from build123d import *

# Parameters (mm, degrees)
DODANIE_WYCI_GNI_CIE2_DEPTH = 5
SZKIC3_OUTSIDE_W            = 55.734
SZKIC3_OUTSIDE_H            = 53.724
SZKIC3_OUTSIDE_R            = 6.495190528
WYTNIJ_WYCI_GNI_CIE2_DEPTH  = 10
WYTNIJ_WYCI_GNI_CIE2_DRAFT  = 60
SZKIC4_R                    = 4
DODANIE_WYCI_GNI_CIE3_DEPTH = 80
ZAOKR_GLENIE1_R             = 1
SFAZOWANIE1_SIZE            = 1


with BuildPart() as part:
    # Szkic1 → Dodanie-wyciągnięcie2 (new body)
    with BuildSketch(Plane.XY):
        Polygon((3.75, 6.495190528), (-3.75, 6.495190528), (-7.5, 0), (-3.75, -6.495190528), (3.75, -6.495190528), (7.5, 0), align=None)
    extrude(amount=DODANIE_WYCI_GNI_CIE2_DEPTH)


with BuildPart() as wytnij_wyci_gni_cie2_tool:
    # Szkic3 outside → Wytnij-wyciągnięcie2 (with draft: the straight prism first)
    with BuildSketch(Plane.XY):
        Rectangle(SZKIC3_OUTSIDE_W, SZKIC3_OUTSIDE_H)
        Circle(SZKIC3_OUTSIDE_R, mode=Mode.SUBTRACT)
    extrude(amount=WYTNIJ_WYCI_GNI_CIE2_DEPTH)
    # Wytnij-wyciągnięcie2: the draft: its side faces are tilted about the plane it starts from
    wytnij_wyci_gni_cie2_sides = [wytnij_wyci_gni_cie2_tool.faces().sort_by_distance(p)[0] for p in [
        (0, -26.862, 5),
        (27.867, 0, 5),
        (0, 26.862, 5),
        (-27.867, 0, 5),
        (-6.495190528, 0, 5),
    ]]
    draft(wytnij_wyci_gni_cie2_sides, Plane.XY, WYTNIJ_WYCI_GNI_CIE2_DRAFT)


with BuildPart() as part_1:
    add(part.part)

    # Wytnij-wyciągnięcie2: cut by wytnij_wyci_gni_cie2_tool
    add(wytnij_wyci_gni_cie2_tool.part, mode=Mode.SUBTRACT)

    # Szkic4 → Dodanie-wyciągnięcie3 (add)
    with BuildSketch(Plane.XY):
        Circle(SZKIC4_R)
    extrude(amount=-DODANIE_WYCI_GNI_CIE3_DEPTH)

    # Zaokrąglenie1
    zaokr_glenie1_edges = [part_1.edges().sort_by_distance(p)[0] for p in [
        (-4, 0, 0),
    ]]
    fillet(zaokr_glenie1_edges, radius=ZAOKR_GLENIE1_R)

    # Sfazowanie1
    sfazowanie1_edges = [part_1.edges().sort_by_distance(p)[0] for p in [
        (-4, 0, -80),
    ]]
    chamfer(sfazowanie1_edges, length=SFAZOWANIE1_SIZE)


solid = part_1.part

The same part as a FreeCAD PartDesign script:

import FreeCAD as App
import Part
import Sketcher
Q = App.Units.Quantity


def edges_at(feature, points):
    """Names of the edges that pass closest to the given points."""
    edges = feature.Shape.Edges
    near = lambda p: min(range(len(edges)), key=lambda i: edges[i].distToShape(Part.Vertex(*p))[0])
    return sorted({f"Edge{near(p) + 1}" for p in points})


def faces_at(feature, points):
    """Names of the faces that lie closest to the given points."""
    faces = feature.Shape.Faces
    near = lambda p: min(range(len(faces)), key=lambda i: faces[i].distToShape(Part.Vertex(*p))[0])
    return sorted({f"Face{near(p) + 1}" for p in points})


def add_polygon(sketch, points):
    """Adds a closed chain of lines whose ends are joined by coincident constraints."""
    first, n = sketch.GeometryCount, len(points)
    for a, b in zip(points, points[1:] + points[:1]):
        sketch.addGeometry(Part.LineSegment(App.Vector(*a, 0), App.Vector(*b, 0)), False)
    for i in range(n):
        sketch.addConstraint(Sketcher.Constraint("Coincident", first + i, 2, first + (i + 1) % n, 1))

doc = App.newDocument("Part")
body = doc.addObject("PartDesign::Body", "Body")

# Sketch on XY plane
sketch1 = body.newObject("Sketcher::SketchObject", "Sketch")
sketch1.AttachmentSupport = (doc.getObject("XY_Plane"), [""])
sketch1.MapMode = "FlatFace"
add_polygon(sketch1, [(3.75, 6.495191), (-3.75, 6.495191), (-7.5, 0), (-3.75, -6.495191), (3.75, -6.495191), (7.5, 0)])  # lines 0-5
sketch1.addConstraint(Sketcher.Constraint("Horizontal", 0))
sketch1.addConstraint(Sketcher.Constraint("Horizontal", 3))
sketch1.addConstraint(Sketcher.Constraint("Symmetric", 0, 2, 3, 2, -1, 1))
sketch1.addConstraint(Sketcher.Constraint("Symmetric", 1, 2, 4, 2, -1, 1))
sketch1.addConstraint(Sketcher.Constraint("PointOnObject", 1, 2, -1))
sketch1.addConstraint(Sketcher.Constraint("Parallel", 2, 5))
sketch1.addConstraint(Sketcher.Constraint("Vertical", 0, 2, 2, 2))
sketch1.addConstraint(Sketcher.Constraint("Angle", 1, Q("-120 deg")))
sketch1.addConstraint(Sketcher.Constraint("DistanceX", 0, 2, 0, 1, 7.5))
sketch1.addConstraint(Sketcher.Constraint("DistanceX", 1, 2, 4, 2, 15.0))
pad1 = body.newObject("PartDesign::Pad", "Pad")
pad1.Profile = sketch1
pad1.Length = 5
body2 = doc.addObject("PartDesign::Body", "Body001")

# Sketch on XY plane
sketch2 = body2.newObject("Sketcher::SketchObject", "Sketch001")
sketch2.AttachmentSupport = (doc.getObject("XY_Plane001"), [""])
sketch2.MapMode = "FlatFace"
add_polygon(sketch2, [(-27.867, 26.862), (-27.867, -26.862), (27.867, -26.862), (27.867, 26.862)])  # lines 0-3
sketch2.addGeometry(Part.Circle(App.Vector(0, 0, 0), App.Vector(0, 0, 1), 6.495191), False)  # 4
sketch2.addConstraint(Sketcher.Constraint("Vertical", 0))
sketch2.addConstraint(Sketcher.Constraint("Horizontal", 1))
sketch2.addConstraint(Sketcher.Constraint("Vertical", 2))
sketch2.addConstraint(Sketcher.Constraint("Horizontal", 3))
sketch2.addConstraint(Sketcher.Constraint("Coincident", 4, 3, -1, 1))
sketch2.addConstraint(Sketcher.Constraint("Symmetric", 0, 2, 2, 2, -1, 1))
sketch2.addConstraint(Sketcher.Constraint("Diameter", 4, 12.990381))
sketch2.addConstraint(Sketcher.Constraint("DistanceX", 1, 1, 1, 2, 55.734))
sketch2.addConstraint(Sketcher.Constraint("DistanceY", 0, 2, 0, 1, 53.724))
pad2 = body2.newObject("PartDesign::Pad", "Pad001")
pad2.Profile = sketch2
pad2.Length = 10
doc.recompute()

draft = body2.newObject("PartDesign::Draft", "Draft")
draft.Base = (pad2, faces_at(pad2, [
    (0, -26.862, 5),
    (27.867, 0, 5),
    (0, 26.862, 5),
    (-27.867, 0, 5),
    (-6.495, 0, 5),
]))
draft.NeutralPlane = (doc.getObject("XY_Plane001"), [""])
draft.Angle = 60
draft.Reversed = False
doc.recompute()

boolean = body.newObject("PartDesign::Boolean", "Boolean")
boolean.Type = "Cut"
boolean.addObjects([body2])

# Sketch on XY plane
sketch3 = body.newObject("Sketcher::SketchObject", "Sketch002")
sketch3.AttachmentSupport = (doc.getObject("XY_Plane"), [""])
sketch3.MapMode = "FlatFace"
sketch3.addGeometry(Part.Circle(App.Vector(0, 0, 0), App.Vector(0, 0, 1), 4), False)
sketch3.addConstraint(Sketcher.Constraint("Coincident", 0, 3, -1, 1))
sketch3.addConstraint(Sketcher.Constraint("Diameter", 0, 8.0))
pad3 = body.newObject("PartDesign::Pad", "Pad002")
pad3.Profile = sketch3
pad3.Length = 80
pad3.Reversed = True
doc.recompute()

fillet = body.newObject("PartDesign::Fillet", "Fillet")
fillet.Base = (pad3, edges_at(pad3, [(-4, 0, 0)]))
fillet.Radius = 1
doc.recompute()

chamfer = body.newObject("PartDesign::Chamfer", "Chamfer")
chamfer.Base = (fillet, edges_at(fillet, [(-4, 0, -80)]))
chamfer.Size = 1

doc.recompute()
